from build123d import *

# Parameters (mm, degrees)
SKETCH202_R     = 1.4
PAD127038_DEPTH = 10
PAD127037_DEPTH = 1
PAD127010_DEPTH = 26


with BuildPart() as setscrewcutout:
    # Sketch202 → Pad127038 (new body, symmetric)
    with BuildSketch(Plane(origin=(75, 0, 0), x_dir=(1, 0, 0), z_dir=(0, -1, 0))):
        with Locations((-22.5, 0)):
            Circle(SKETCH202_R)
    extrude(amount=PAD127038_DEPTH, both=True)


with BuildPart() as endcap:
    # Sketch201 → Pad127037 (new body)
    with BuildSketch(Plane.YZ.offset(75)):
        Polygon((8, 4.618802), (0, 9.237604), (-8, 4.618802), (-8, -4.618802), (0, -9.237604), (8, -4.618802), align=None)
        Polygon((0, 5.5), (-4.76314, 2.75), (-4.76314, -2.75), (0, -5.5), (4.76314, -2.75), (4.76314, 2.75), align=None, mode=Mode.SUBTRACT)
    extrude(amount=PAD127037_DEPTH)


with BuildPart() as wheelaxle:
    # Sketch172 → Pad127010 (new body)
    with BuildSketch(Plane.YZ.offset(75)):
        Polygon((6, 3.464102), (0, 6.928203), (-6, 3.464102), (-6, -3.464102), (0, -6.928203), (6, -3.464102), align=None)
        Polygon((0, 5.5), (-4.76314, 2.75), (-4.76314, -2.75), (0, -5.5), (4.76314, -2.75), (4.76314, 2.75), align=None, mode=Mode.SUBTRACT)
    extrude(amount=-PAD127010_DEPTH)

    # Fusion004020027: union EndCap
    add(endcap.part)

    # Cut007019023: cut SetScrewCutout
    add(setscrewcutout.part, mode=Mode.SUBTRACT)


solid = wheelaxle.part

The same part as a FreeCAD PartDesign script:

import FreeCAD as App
import Part
import Sketcher
Q = App.Units.Quantity

doc = App.newDocument("Part")
body = doc.addObject("PartDesign::Body", "Body")

sketch1 = body.newObject("Sketcher::SketchObject", "Sketch")
sketch1.AttachmentSupport = (doc.getObject("XZ_Plane"), [""])
sketch1.MapMode = "FlatFace"
sketch1.addGeometry(Part.Circle(App.Vector(52.5, 0, 0), App.Vector(0, 0, 1), 1.4), False)
sketch1.addConstraint(Sketcher.Constraint("PointOnObject", 0, 3, -1))
sketch1.addConstraint(Sketcher.Constraint("Diameter", 0, 2.8))
sketch1.addConstraint(Sketcher.Constraint("DistanceX", -1, 1, 0, 3, 52.5))
pad1 = body.newObject("PartDesign::Pad", "Pad")
pad1.Profile = sketch1
pad1.Length = 20
pad1.Midplane = True
body2 = doc.addObject("PartDesign::Body", "Body001")

sketch2 = body2.newObject("Sketcher::SketchObject", "Sketch001")
sketch2.AttachmentSupport = (doc.getObject("YZ_Plane001"), [""])
sketch2.MapMode = "FlatFace"
sketch2.AttachmentOffset = App.Placement(App.Vector(0, 0, 75), App.Rotation())
sketch2.addGeometry(Part.LineSegment(App.Vector(8, 5, 0), App.Vector(0, 9, 0)), False)
sketch2.addGeometry(Part.LineSegment(App.Vector(0, 9, 0), App.Vector(-8, 5, 0)), False)
sketch2.addGeometry(Part.LineSegment(App.Vector(-8, 5, 0), App.Vector(-8, -5, 0)), False)
sketch2.addGeometry(Part.LineSegment(App.Vector(-8, -5, 0), App.Vector(0, -9, 0)), False)
sketch2.addGeometry(Part.LineSegment(App.Vector(0, -9, 0), App.Vector(8, -5, 0)), False)
sketch2.addGeometry(Part.LineSegment(App.Vector(8, -5, 0), App.Vector(8, 5, 0)), False)
sketch2.addGeometry(Part.LineSegment(App.Vector(-5, 3, 0), App.Vector(0, 6, 0)), False)
sketch2.addGeometry(Part.LineSegment(App.Vector(0, 6, 0), App.Vector(5, 3, 0)), False)
sketch2.addGeometry(Part.LineSegment(App.Vector(5, 3, 0), App.Vector(5, -3, 0)), False)
sketch2.addGeometry(Part.LineSegment(App.Vector(5, -3, 0), App.Vector(0, -6, 0)), False)
sketch2.addGeometry(Part.LineSegment(App.Vector(0, -6, 0), App.Vector(-5, -3, 0)), False)
sketch2.addGeometry(Part.LineSegment(App.Vector(-5, -3, 0), App.Vector(-5, 3, 0)), False)
sketch2.addConstraint(Sketcher.Constraint("Coincident", 0, 2, 1, 1))
sketch2.addConstraint(Sketcher.Constraint("Coincident", 1, 2, 2, 1))
sketch2.addConstraint(Sketcher.Constraint("Coincident", 2, 2, 3, 1))
sketch2.addConstraint(Sketcher.Constraint("Coincident", 3, 2, 4, 1))
sketch2.addConstraint(Sketcher.Constraint("Coincident", 4, 2, 5, 1))
sketch2.addConstraint(Sketcher.Constraint("Coincident", 5, 2, 0, 1))
sketch2.addConstraint(Sketcher.Constraint("Coincident", 6, 2, 7, 1))
sketch2.addConstraint(Sketcher.Constraint("Coincident", 7, 2, 8, 1))
sketch2.addConstraint(Sketcher.Constraint("Coincident", 8, 2, 9, 1))
sketch2.addConstraint(Sketcher.Constraint("Coincident", 9, 2, 10, 1))
sketch2.addConstraint(Sketcher.Constraint("Coincident", 10, 2, 11, 1))
sketch2.addConstraint(Sketcher.Constraint("Coincident", 11, 2, 6, 1))
sketch2.addConstraint(Sketcher.Constraint("Vertical", 2))
sketch2.addConstraint(Sketcher.Constraint("Vertical", 5))
sketch2.addConstraint(Sketcher.Constraint("Vertical", 8))
sketch2.addConstraint(Sketcher.Constraint("Vertical", 11))
sketch2.addConstraint(Sketcher.Constraint("Symmetric", 0, 2, 3, 2, -1, 1))
sketch2.addConstraint(Sketcher.Constraint("Symmetric", 1, 2, 4, 2, -1, 1))
sketch2.addConstraint(Sketcher.Constraint("Symmetric", 6, 2, 9, 2, -1, 1))
sketch2.addConstraint(Sketcher.Constraint("Symmetric", 7, 2, 10, 2, -1, 1))
sketch2.addConstraint(Sketcher.Constraint("PointOnObject", 0, 2, -2))
sketch2.addConstraint(Sketcher.Constraint("PointOnObject", 6, 2, -2))
sketch2.addConstraint(Sketcher.Constraint("Parallel", 0, 3))
sketch2.addConstraint(Sketcher.Constraint("Parallel", 4, 6))
sketch2.addConstraint(Sketcher.Constraint("Parallel", 3, 7))
sketch2.addConstraint(Sketcher.Constraint("Parallel", 6, 9))
sketch2.addConstraint(Sketcher.Constraint("Horizontal", 2, 2, 4, 2))
sketch2.addConstraint(Sketcher.Constraint("Angle", 0, Q("150.000001 deg")))
sketch2.addConstraint(Sketcher.Constraint("DistanceY", 8, 2, 8, 1, 5.5))
sketch2.addConstraint(Sketcher.Constraint("DistanceX", 1, 2, -1, 1, 8.0))
sketch2.addConstraint(Sketcher.Constraint("Distance", 6, 5.5))
sketch2.addConstraint(Sketcher.Constraint("DistanceY", -1, 1, 1, 2, 4.618802))
pad2 = body2.newObject("PartDesign::Pad", "Pad001")
pad2.Profile = sketch2
pad2.Length = 1
body3 = doc.addObject("PartDesign::Body", "Body002")

sketch3 = body3.newObject("Sketcher::SketchObject", "Sketch002")
sketch3.AttachmentSupport = (doc.getObject("YZ_Plane002"), [""])
sketch3.MapMode = "FlatFace"
sketch3.AttachmentOffset = App.Placement(App.Vector(0, 0, 75), App.Rotation())
sketch3.addGeometry(Part.LineSegment(App.Vector(6, 3, 0), App.Vector(0, 7, 0)), False)
sketch3.addGeometry(Part.LineSegment(App.Vector(0, 7, 0), App.Vector(-6, 3, 0)), False)
sketch3.addGeometry(Part.LineSegment(App.Vector(-6, 3, 0), App.Vector(-6, -3, 0)), False)
sketch3.addGeometry(Part.LineSegment(App.Vector(-6, -3, 0), App.Vector(0, -7, 0)), False)
sketch3.addGeometry(Part.LineSegment(App.Vector(0, -7, 0), App.Vector(6, -3, 0)), False)
sketch3.addGeometry(Part.LineSegment(App.Vector(6, -3, 0), App.Vector(6, 3, 0)), False)
sketch3.addGeometry(Part.LineSegment(App.Vector(-5, 3, 0), App.Vector(0, 6, 0)), False)
sketch3.addGeometry(Part.LineSegment(App.Vector(0, 6, 0), App.Vector(5, 3, 0)), False)
sketch3.addGeometry(Part.LineSegment(App.Vector(5, 3, 0), App.Vector(5, -3, 0)), False)
sketch3.addGeometry(Part.LineSegment(App.Vector(5, -3, 0), App.Vector(0, -6, 0)), False)
sketch3.addGeometry(Part.LineSegment(App.Vector(0, -6, 0), App.Vector(-5, -3, 0)), False)
sketch3.addGeometry(Part.LineSegment(App.Vector(-5, -3, 0), App.Vector(-5, 3, 0)), False)
sketch3.addConstraint(Sketcher.Constraint("Coincident", 0, 2, 1, 1))
sketch3.addConstraint(Sketcher.Constraint("Coincident", 1, 2, 2, 1))
sketch3.addConstraint(Sketcher.Constraint("Coincident", 2, 2, 3, 1))
sketch3.addConstraint(Sketcher.Constraint("Coincident", 3, 2, 4, 1))
sketch3.addConstraint(Sketcher.Constraint("Coincident", 4, 2, 5, 1))
sketch3.addConstraint(Sketcher.Constraint("Coincident", 5, 2, 0, 1))
sketch3.addConstraint(Sketcher.Constraint("Coincident", 6, 2, 7, 1))
sketch3.addConstraint(Sketcher.Constraint("Coincident", 7, 2, 8, 1))
sketch3.addConstraint(Sketcher.Constraint("Coincident", 8, 2, 9, 1))
sketch3.addConstraint(Sketcher.Constraint("Coincident", 9, 2, 10, 1))
sketch3.addConstraint(Sketcher.Constraint("Coincident", 10, 2, 11, 1))
sketch3.addConstraint(Sketcher.Constraint("Coincident", 11, 2, 6, 1))
sketch3.addConstraint(Sketcher.Constraint("Vertical", 2))
sketch3.addConstraint(Sketcher.Constraint("Vertical", 5))
sketch3.addConstraint(Sketcher.Constraint("Vertical", 8))
sketch3.addConstraint(Sketcher.Constraint("Vertical", 11))
sketch3.addConstraint(Sketcher.Constraint("Symmetric", 0, 2, 3, 2, -1, 1))
sketch3.addConstraint(Sketcher.Constraint("Symmetric", 1, 2, 4, 2, -1, 1))
sketch3.addConstraint(Sketcher.Constraint("Symmetric", 6, 2, 9, 2, -1, 1))
sketch3.addConstraint(Sketcher.Constraint("Symmetric", 7, 2, 10, 2, -1, 1))
sketch3.addConstraint(Sketcher.Constraint("PointOnObject", 0, 2, -2))
sketch3.addConstraint(Sketcher.Constraint("PointOnObject", 6, 2, -2))
sketch3.addConstraint(Sketcher.Constraint("Parallel", 0, 3))
sketch3.addConstraint(Sketcher.Constraint("Parallel", 4, 6))
sketch3.addConstraint(Sketcher.Constraint("Parallel", 3, 7))
sketch3.addConstraint(Sketcher.Constraint("Parallel", 6, 9))
sketch3.addConstraint(Sketcher.Constraint("Horizontal", 2, 2, 4, 2))
sketch3.addConstraint(Sketcher.Constraint("Angle", 0, Q("150.000004 deg")))
sketch3.addConstraint(Sketcher.Constraint("DistanceY", 8, 2, 8, 1, 5.5))
sketch3.addConstraint(Sketcher.Constraint("DistanceX", 1, 2, -1, 1, 6.0))
sketch3.addConstraint(Sketcher.Constraint("Distance", 6, 5.5))
sketch3.addConstraint(Sketcher.Constraint("DistanceY", -1, 1, 1, 2, 3.464102))
pad3 = body3.newObject("PartDesign::Pad", "Pad002")
pad3.Profile = sketch3
pad3.Length = 26
pad3.Reversed = True
doc.recompute()

boolean = body3.newObject("PartDesign::Boolean", "Boolean")
boolean.Type = "Fuse"
boolean.addObjects([body2])
doc.recompute()

boolean2 = body3.newObject("PartDesign::Boolean", "Boolean001")
boolean2.Type = "Cut"
boolean2.addObjects([body])

doc.recompute()
